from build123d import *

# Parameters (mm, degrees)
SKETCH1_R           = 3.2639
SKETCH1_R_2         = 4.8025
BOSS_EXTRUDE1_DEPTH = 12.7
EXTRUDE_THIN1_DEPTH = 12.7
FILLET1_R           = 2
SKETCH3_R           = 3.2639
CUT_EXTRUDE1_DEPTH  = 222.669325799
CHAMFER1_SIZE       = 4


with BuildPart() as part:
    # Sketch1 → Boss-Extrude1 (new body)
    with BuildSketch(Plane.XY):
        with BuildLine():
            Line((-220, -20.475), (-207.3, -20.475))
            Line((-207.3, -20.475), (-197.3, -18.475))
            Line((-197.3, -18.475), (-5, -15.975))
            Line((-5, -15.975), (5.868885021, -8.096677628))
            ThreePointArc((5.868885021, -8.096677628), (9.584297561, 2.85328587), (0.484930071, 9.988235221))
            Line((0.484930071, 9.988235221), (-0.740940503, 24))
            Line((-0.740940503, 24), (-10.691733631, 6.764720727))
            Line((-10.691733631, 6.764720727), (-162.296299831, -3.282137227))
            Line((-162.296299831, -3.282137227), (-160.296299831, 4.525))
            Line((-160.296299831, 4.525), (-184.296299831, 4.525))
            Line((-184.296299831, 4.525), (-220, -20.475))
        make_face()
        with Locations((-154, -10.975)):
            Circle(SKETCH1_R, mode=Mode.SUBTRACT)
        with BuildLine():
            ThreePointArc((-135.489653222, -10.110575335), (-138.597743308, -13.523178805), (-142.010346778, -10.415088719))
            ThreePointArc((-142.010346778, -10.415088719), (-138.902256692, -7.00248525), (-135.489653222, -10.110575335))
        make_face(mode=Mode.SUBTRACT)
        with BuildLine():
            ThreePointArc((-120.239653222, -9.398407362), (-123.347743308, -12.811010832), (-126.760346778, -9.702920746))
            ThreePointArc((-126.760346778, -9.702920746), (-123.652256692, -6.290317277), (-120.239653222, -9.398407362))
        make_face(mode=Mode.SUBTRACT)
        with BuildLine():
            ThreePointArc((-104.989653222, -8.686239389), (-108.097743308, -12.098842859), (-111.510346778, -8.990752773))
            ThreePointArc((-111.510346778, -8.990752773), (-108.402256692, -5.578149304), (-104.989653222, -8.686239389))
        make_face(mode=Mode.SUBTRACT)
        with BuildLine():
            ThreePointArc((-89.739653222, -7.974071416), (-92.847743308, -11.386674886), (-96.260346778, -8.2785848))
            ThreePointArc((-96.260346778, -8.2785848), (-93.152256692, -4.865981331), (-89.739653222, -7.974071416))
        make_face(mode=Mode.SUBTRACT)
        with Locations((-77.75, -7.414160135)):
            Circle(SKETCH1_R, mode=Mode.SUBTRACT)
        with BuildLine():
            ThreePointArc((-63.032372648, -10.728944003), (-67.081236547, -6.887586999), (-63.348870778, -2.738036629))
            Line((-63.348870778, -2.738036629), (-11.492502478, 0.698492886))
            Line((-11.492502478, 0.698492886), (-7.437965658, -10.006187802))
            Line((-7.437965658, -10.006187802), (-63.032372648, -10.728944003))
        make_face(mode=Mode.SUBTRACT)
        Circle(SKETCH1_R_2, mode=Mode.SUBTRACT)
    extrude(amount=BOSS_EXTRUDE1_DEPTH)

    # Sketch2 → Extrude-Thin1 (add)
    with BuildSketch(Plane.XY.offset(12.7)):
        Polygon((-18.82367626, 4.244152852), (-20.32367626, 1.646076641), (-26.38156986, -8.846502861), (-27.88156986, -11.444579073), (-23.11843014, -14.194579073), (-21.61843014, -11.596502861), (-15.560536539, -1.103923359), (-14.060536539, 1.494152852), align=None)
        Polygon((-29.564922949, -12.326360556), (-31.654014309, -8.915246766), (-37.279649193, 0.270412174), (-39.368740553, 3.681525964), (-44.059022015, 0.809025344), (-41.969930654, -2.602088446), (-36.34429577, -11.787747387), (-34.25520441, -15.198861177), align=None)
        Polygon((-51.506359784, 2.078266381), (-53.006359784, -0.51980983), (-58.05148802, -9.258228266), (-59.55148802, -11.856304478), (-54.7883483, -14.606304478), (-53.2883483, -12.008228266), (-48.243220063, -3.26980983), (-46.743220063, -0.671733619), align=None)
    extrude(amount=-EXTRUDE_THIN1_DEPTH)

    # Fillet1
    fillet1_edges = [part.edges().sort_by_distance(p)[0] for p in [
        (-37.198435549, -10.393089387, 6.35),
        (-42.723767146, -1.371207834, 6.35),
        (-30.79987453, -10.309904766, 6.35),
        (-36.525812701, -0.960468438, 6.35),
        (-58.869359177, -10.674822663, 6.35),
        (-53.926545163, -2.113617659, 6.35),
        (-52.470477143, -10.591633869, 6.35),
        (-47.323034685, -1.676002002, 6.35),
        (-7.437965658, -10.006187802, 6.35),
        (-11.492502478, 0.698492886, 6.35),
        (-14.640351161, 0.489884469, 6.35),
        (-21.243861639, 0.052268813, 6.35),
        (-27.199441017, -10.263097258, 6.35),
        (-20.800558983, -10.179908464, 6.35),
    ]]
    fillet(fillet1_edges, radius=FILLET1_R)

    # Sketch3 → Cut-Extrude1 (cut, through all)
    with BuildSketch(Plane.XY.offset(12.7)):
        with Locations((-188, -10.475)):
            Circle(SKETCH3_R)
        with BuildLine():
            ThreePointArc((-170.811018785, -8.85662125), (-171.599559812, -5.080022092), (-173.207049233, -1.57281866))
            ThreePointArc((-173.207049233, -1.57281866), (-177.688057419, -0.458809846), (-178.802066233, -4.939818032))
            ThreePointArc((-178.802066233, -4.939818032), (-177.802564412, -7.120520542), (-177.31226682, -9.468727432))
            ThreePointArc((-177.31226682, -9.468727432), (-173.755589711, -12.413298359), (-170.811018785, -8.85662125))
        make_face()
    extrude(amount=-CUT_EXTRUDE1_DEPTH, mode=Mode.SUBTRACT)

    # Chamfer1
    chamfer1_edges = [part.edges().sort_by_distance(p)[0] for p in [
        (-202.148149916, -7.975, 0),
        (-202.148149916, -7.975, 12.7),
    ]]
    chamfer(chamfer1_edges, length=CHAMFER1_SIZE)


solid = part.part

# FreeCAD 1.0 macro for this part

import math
import FreeCAD as App
import Part
import Sketcher
Q = App.Units.Quantity


def edges_at(feature, points):
    """Names of the edges that pass closest to the given points."""
    edges = feature.Shape.Edges
    near = lambda p: min(range(len(edges)), key=lambda i: edges[i].distToShape(Part.Vertex(*p))[0])
    return sorted({f"Edge{near(p) + 1}" for p in points})


def add_polygon(sketch, points):
    """Adds a closed chain of lines whose ends are joined by coincident constraints."""
    first, n = sketch.GeometryCount, len(points)
    for a, b in zip(points, points[1:] + points[:1]):
        sketch.addGeometry(Part.LineSegment(App.Vector(*a, 0), App.Vector(*b, 0)), False)
    for i in range(n):
        sketch.addConstraint(Sketcher.Constraint("Coincident", first + i, 2, first + (i + 1) % n, 1))

doc = App.newDocument("Part")
body = doc.addObject("PartDesign::Body", "Body")

# Sketch on XY plane
sketch1 = body.newObject("Sketcher::SketchObject", "Sketch")
sketch1.AttachmentSupport = (doc.getObject("XY_Plane"), [""])
sketch1.MapMode = "FlatFace"
sketch1.addGeometry([
    Part.LineSegment(App.Vector(-220, -20.475, 0), App.Vector(-207.3, -20.475, 0)),  # 0
    Part.LineSegment(App.Vector(-207.3, -20.475, 0), App.Vector(-197.3, -18.475, 0)),  # 1
    Part.LineSegment(App.Vector(-197.3, -18.475, 0), App.Vector(-5, -15.975, 0)),  # 2
    Part.LineSegment(App.Vector(-5, -15.975, 0), App.Vector(5.868885, -8.096678, 0)),  # 3
    Part.ArcOfCircle(Part.Circle(App.Vector(0, 0, 0), App.Vector(0, 0, 1), 10), math.radians(-54.063484), math.radians(87.220465)),  # 4
    Part.LineSegment(App.Vector(0.48493, 9.988235, 0), App.Vector(-0.740941, 24, 0)),  # 5
    Part.LineSegment(App.Vector(-0.740941, 24, 0), App.Vector(-10.691734, 6.764721, 0)),  # 6
    Part.LineSegment(App.Vector(-10.691734, 6.764721, 0), App.Vector(-162.2963, -3.282137, 0)),  # 7
    Part.LineSegment(App.Vector(-162.2963, -3.282137, 0), App.Vector(-160.2963, 4.525, 0)),  # 8
    Part.LineSegment(App.Vector(-160.2963, 4.525, 0), App.Vector(-184.2963, 4.525, 0)),  # 9
    Part.LineSegment(App.Vector(-184.2963, 4.525, 0), App.Vector(-220, -20.475, 0)),  # 10
    Part.Circle(App.Vector(-154, -10.975, 0), App.Vector(0, 0, 1), 3.2639),  # 11
    Part.ArcOfCircle(Part.Circle(App.Vector(-138.75, -10.262832, 0), App.Vector(0, 0, 1), 3.2639), math.radians(2.673744), math.radians(182.673744)),  # 12
    Part.ArcOfCircle(Part.Circle(App.Vector(-138.75, -10.262832, 0), App.Vector(0, 0, 1), 3.2639), math.radians(-177.326256), math.radians(2.673744)),  # 13
    Part.ArcOfCircle(Part.Circle(App.Vector(-123.5, -9.550664, 0), App.Vector(0, 0, 1), 3.2639), math.radians(2.673744), math.radians(182.673744)),  # 14
    Part.ArcOfCircle(Part.Circle(App.Vector(-123.5, -9.550664, 0), App.Vector(0, 0, 1), 3.2639), math.radians(-177.326256), math.radians(2.673744)),  # 15
    Part.ArcOfCircle(Part.Circle(App.Vector(-108.25, -8.838496, 0), App.Vector(0, 0, 1), 3.2639), math.radians(2.673744), math.radians(182.673744)),  # 16
    Part.ArcOfCircle(Part.Circle(App.Vector(-108.25, -8.838496, 0), App.Vector(0, 0, 1), 3.2639), math.radians(-177.326256), math.radians(2.673744)),  # 17
    Part.ArcOfCircle(Part.Circle(App.Vector(-93, -8.126328, 0), App.Vector(0, 0, 1), 3.2639), math.radians(2.673744), math.radians(182.673744)),  # 18
    Part.ArcOfCircle(Part.Circle(App.Vector(-93, -8.126328, 0), App.Vector(0, 0, 1), 3.2639), math.radians(-177.326256), math.radians(2.673744)),  # 19
    Part.Circle(App.Vector(-77.75, -7.41416, 0), App.Vector(0, 0, 1), 3.2639),  # 20
    Part.LineSegment(App.Vector(-7.437966, -10.006188, 0), App.Vector(-63.032373, -10.728944, 0)),  # 21
    Part.ArcOfCircle(Part.Circle(App.Vector(-63.08437, -6.729282, 0), App.Vector(0, 0, 1), 4), math.radians(93.791456), math.radians(270.744833)),  # 22
    Part.LineSegment(App.Vector(-63.348871, -2.738037, 0), App.Vector(-11.492502, 0.698493, 0)),  # 23
    Part.LineSegment(App.Vector(-11.492502, 0.698493, 0), App.Vector(-7.437966, -10.006188, 0)),  # 24
    Part.Circle(App.Vector(0, 0, 0), App.Vector(0, 0, 1), 4.8025),  # 25
], False)
sketch1.addConstraint([
    Sketcher.Constraint("Coincident", 0, 2, 1, 1),
    Sketcher.Constraint("Coincident", 1, 2, 2, 1),
    Sketcher.Constraint("Coincident", 2, 2, 3, 1),
    Sketcher.Constraint("Tangent", 3, 2, 4, 1),
    Sketcher.Constraint("Coincident", 4, 2, 5, 1),
    Sketcher.Constraint("Coincident", 5, 2, 6, 1),
    Sketcher.Constraint("Coincident", 6, 2, 7, 1),
    Sketcher.Constraint("Coincident", 7, 2, 8, 1),
    Sketcher.Constraint("Coincident", 8, 2, 9, 1),
    Sketcher.Constraint("Coincident", 9, 2, 10, 1),
    Sketcher.Constraint("Coincident", 10, 2, 0, 1),
    Sketcher.Constraint("Tangent", 12, 1, 13, 2),
    Sketcher.Constraint("Coincident", 13, 1, 12, 2),
    Sketcher.Constraint("Tangent", 14, 1, 15, 2),
    Sketcher.Constraint("Coincident", 15, 1, 14, 2),
    Sketcher.Constraint("Tangent", 16, 1, 17, 2),
    Sketcher.Constraint("Coincident", 17, 1, 16, 2),
    Sketcher.Constraint("Tangent", 18, 1, 19, 2),
    Sketcher.Constraint("Coincident", 19, 1, 18, 2),
    Sketcher.Constraint("Tangent", 21, 2, 22, 2),
    Sketcher.Constraint("Tangent", 22, 1, 23, 1),
    Sketcher.Constraint("Coincident", 23, 2, 24, 1),
    Sketcher.Constraint("Coincident", 24, 2, 21, 1),
    Sketcher.Constraint("Horizontal", 0),
    Sketcher.Constraint("Horizontal", 9),
    Sketcher.Constraint("Coincident", 4, 3, -1, 1),
    Sketcher.Constraint("Coincident", 25, 3, -1, 1),
    Sketcher.Constraint("Equal", 11, 12),
    Sketcher.Constraint("Equal", 13, 14),
    Sketcher.Constraint("Equal", 15, 16),
    Sketcher.Constraint("Equal", 17, 18),
    Sketcher.Constraint("Equal", 19, 20),
    Sketcher.Constraint("Parallel", 2, 21),
    Sketcher.Constraint("Parallel", 7, 23),
    Sketcher.Constraint("Radius", 4, 10.0),
    Sketcher.Constraint("Radius", 22, 4.0),
    Sketcher.Constraint("DistanceX", 9, 2, 9, 1, 24.0),
    Sketcher.Constraint("Angle", 5, Q("95 deg")),
    Sketcher.Constraint("Angle", 6, Q("-120 deg")),
    Sketcher.Constraint("Angle", 10, Q("-145 deg")),
    Sketcher.Constraint("Diameter", 25, 9.605),
    Sketcher.Constraint("DistanceX", 0, 1, 0, 2, 12.7),
    Sketcher.Constraint("DistanceX", 11, 3, -1, 1, 154.0),
    Sketcher.Constraint("DistanceX", 18, 3, -1, 1, 93.0),
    Sketcher.Constraint("DistanceX", 2, 2, -1, 1, 5.0),
    Sketcher.Constraint("DistanceY", -1, 1, 5, 2, 24.0),
    Sketcher.Constraint("DistanceX", 10, 2, -1, 1, 220.0),
    Sketcher.Constraint("DistanceX", 0, 2, 1, 2, 10.0),
    Sketcher.Constraint("DistanceY", 0, 2, 1, 2, 2.0),
    Sketcher.Constraint("DistanceX", 7, 2, 8, 2, 2.0),
    Sketcher.Constraint("DistanceY", 1, 2, 9, 2, 23.0),
    Sketcher.Constraint("Diameter", 11, 6.5278),
    Sketcher.Constraint("DistanceX", 14, 3, -1, 1, 123.5),
    Sketcher.Constraint("DistanceX", 13, 3, 16, 3, 30.5),
    Sketcher.Constraint("DistanceX", 17, 3, 20, 3, 30.5),
    Sketcher.Constraint("DistanceY", 0, 2, 11, 3, 9.5),
    Sketcher.Constraint("DistanceX", 12, 3, -1, 1, 138.75),
    Sketcher.Constraint("DistanceX", 12, 1, 14, 1, 15.25),
    Sketcher.Constraint("DistanceX", 14, 1, 16, 1, 15.25),
    Sketcher.Constraint("DistanceX", 16, 1, 18, 1, 15.25),
    Sketcher.Constraint("DistanceY", 11, 3, -1, 1, 10.975),
    Sketcher.Constraint("DistanceY", 2, 2, -1, 1, 15.975),
    Sketcher.Constraint("DistanceX", 22, 3, 4, 2, 63.5693),
    Sketcher.Constraint("DistanceY", 3, 2, 6, 2, 14.861398),
    Sketcher.Constraint("DistanceX", 22, 1, 22, 3, 0.2645),
    Sketcher.Constraint("Distance", 24, 11.44681),
    Sketcher.Constraint("DistanceY", 18, 3, -1, 1, 8.126328),
    Sketcher.Constraint("DistanceY", 20, 3, -1, 1, 7.41416),
    Sketcher.Constraint("DistanceX", 22, 3, -1, 1, 63.08437),
    Sketcher.Constraint("DistanceY", 22, 3, -1, 1, 6.729282),
    Sketcher.Constraint("DistanceY", 13, 1, -1, 1, 10.415089),
    Sketcher.Constraint("DistanceY", 15, 1, -1, 1, 9.702921),
    Sketcher.Constraint("DistanceY", 16, 1, -1, 1, 8.686239),
    Sketcher.Constraint("DistanceY", 18, 1, -1, 1, 7.974071),
    Sketcher.Constraint("DistanceY", 12, 1, 14, 3, 0.559911),
    Sketcher.Constraint("DistanceY", 14, 1, 16, 3, 0.559911),
    Sketcher.Constraint("DistanceY", 15, 3, 17, 1, 0.559911),
    Sketcher.Constraint("DistanceY", 17, 3, 19, 1, 0.559911),
    Sketcher.Constraint("DistanceX", 23, 2, 6, 2, 0.800769),
])
pad1 = body.newObject("PartDesign::Pad", "Pad")
pad1.Profile = sketch1
pad1.Length = 12.7

# Sketch on XY plane
sketch2 = body.newObject("Sketcher::SketchObject", "Sketch001")
sketch2.AttachmentSupport = (doc.getObject("XY_Plane"), [""])
sketch2.MapMode = "FlatFace"
sketch2.AttachmentOffset = App.Placement(App.Vector(0, 0, 12.7), App.Rotation())
add_polygon(sketch2, [(-18.823676, 4.244153), (-20.323676, 1.646077), (-26.38157, -8.846503), (-27.88157, -11.444579), (-23.11843, -14.194579), (-21.61843, -11.596503), (-15.560537, -1.103923), (-14.060537, 1.494153)])  # lines 0-7
add_polygon(sketch2, [(-29.564923, -12.326361), (-31.654014, -8.915247), (-37.279649, 0.270412), (-39.368741, 3.681526), (-44.059022, 0.809025), (-41.969931, -2.602088), (-36.344296, -11.787747), (-34.255204, -15.198861)])  # lines 8-15
add_polygon(sketch2, [(-51.50636, 2.078266), (-53.00636, -0.51981), (-58.051488, -9.258228), (-59.551488, -11.856304), (-54.788348, -14.606304), (-53.288348, -12.008228), (-46.74322, -0.671734)])  # lines 16-22
sketch2.addConstraint([
    Sketcher.Constraint("Parallel", 0, 1),
    Sketcher.Constraint("Parallel", 1, 2),
    Sketcher.Constraint("Perpendicular", 2, 3),
    Sketcher.Constraint("Perpendicular", 3, 4),
    Sketcher.Constraint("Parallel", 4, 5),
    Sketcher.Constraint("Parallel", 5, 6),
    Sketcher.Constraint("Perpendicular", 6, 7),
    Sketcher.Constraint("Parallel", 8, 9),
    Sketcher.Constraint("Parallel", 9, 10),
    Sketcher.Constraint("Perpendicular", 10, 11),
    Sketcher.Constraint("Perpendicular", 11, 12),
    Sketcher.Constraint("Parallel", 12, 13),
    Sketcher.Constraint("Parallel", 13, 14),
    Sketcher.Constraint("Perpendicular", 14, 15),
    Sketcher.Constraint("Perpendicular", 7, 16),
    Sketcher.Constraint("Parallel", 16, 17),
    Sketcher.Constraint("Parallel", 17, 18),
    Sketcher.Constraint("Perpendicular", 18, 19),
    Sketcher.Constraint("Perpendicular", 19, 20),
    Sketcher.Constraint("Parallel", 20, 21),
    Sketcher.Constraint("Perpendicular", 21, 22),
    Sketcher.Constraint("Equal", 0, 2),
    Sketcher.Constraint("Equal", 2, 4),
    Sketcher.Constraint("Equal", 1, 5),
    Sketcher.Constraint("Equal", 8, 10),
    Sketcher.Constraint("Equal", 7, 11),
    Sketcher.Constraint("Equal", 10, 12),
    Sketcher.Constraint("Equal", 9, 13),
    Sketcher.Constraint("Equal", 6, 16),
    Sketcher.Constraint("Equal", 16, 18),
    Sketcher.Constraint("Equal", 15, 19),
    Sketcher.Constraint("Equal", 18, 20),
    Sketcher.Constraint("Angle", 0, Q("-120 deg")),
    Sketcher.Constraint("Distance", 0, 3.0),
    Sketcher.Constraint("Distance", 8, 4.0),
    Sketcher.Constraint("Distance", 3, 5.5),
    Sketcher.Constraint("DistanceY", 11, 2, 10, 2, 2.872501),
    Sketcher.Constraint("DistanceX", 21, 2, 11, 2, 2.684198),
    Sketcher.Constraint("Distance", 9, 10.771448),
    Sketcher.Constraint("DistanceX", 1, 2, -1, 1, 26.38157),
    Sketcher.Constraint("DistanceY", 2, 2, -1, 1, 11.444579),
    Sketcher.Constraint("DistanceX", 9, 2, -1, 1, 37.279649),
    Sketcher.Constraint("DistanceY", 12, 2, -1, 1, 2.602088),
    Sketcher.Constraint("DistanceY", 16, 2, -1, 1, 0.51981),
    Sketcher.Constraint("DistanceX", 17, 2, -1, 1, 58.051488),
    Sketcher.Constraint("DistanceY", 1, 2, 0, 2, 10.49258),
])
pad2 = body.newObject("PartDesign::Pad", "Pad001")
pad2.Profile = sketch2
pad2.Length = 12.7
pad2.Reversed = True
doc.recompute()

fillet = body.newObject("PartDesign::Fillet", "Fillet")
fillet.Base = (pad2, edges_at(pad2, [
    (-37.198, -10.393, 6.35),
    (-42.724, -1.371, 6.35),
    (-30.8, -10.31, 6.35),
    (-36.526, -0.96, 6.35),
    (-58.869, -10.675, 6.35),
    (-53.927, -2.114, 6.35),
    (-52.47, -10.592, 6.35),
    (-47.323, -1.676, 6.35),
    (-7.438, -10.006, 6.35),
    (-11.493, 0.698, 6.35),
    (-14.64, 0.49, 6.35),
    (-21.244, 0.052, 6.35),
    (-27.199, -10.263, 6.35),
    (-20.801, -10.18, 6.35),
]))
fillet.Radius = 2

# Sketch on XY plane
sketch3 = body.newObject("Sketcher::SketchObject", "Sketch002")
sketch3.AttachmentSupport = (doc.getObject("XY_Plane"), [""])
sketch3.MapMode = "FlatFace"
sketch3.AttachmentOffset = App.Placement(App.Vector(0, 0, 12.7), App.Rotation())
sketch3.addGeometry([
    Part.Circle(App.Vector(-188, -10.475, 0), App.Vector(0, 0, 1), 3.2639),  # 0
    Part.ArcOfCircle(Part.Circle(App.Vector(-188, -10.475, 0), App.Vector(0, 0, 1), 17.265), math.radians(5.378662), math.radians(31.038914)),  # 1
    Part.ArcOfCircle(Part.Circle(App.Vector(-176.004558, -3.256318, 0), App.Vector(0, 0, 1), 3.265), math.radians(31.038914), math.radians(211.038914)),  # 2
    Part.ArcOfCircle(Part.Circle(App.Vector(-188, -10.475, 0), App.Vector(0, 0, 1), 10.735), math.radians(5.378662), math.radians(31.038914)),  # 3
    Part.ArcOfCircle(Part.Circle(App.Vector(-174.061643, -9.162674, 0), App.Vector(0, 0, 1), 3.265), math.radians(-174.621338), math.radians(5.378662)),  # 4
], False)
sketch3.addConstraint([
    Sketcher.Constraint("Tangent", 1, 2, 2, 1),
    Sketcher.Constraint("Tangent", 2, 2, 3, 2),
    Sketcher.Constraint("Tangent", 3, 1, 4, 1),
    Sketcher.Constraint("Tangent", 4, 2, 1, 1),
    Sketcher.Constraint("Coincident", 1, 3, 0, 3),
    Sketcher.Constraint("Coincident", 3, 3, 0, 3),
    Sketcher.Constraint("DistanceX", 0, 3, -1, 1, 188.0),
    Sketcher.Constraint("Radius", 1, 17.265),
    Sketcher.Constraint("Radius", 2, 3.265),
    Sketcher.Constraint("Diameter", 0, 6.5278),
    Sketcher.Constraint("DistanceY", 0, 3, -1, 1, 10.475),
    Sketcher.Constraint("DistanceY", 2, 2, 1, 2, 3.366999),
    Sketcher.Constraint("DistanceX", 2, 2, 3, 1, 1.489799),
])
pocket1 = body.newObject("PartDesign::Pocket", "Pocket")
pocket1.Profile = sketch3
pocket1.Type = "ThroughAll"
doc.recompute()

chamfer = body.newObject("PartDesign::Chamfer", "Chamfer")
chamfer.Base = (pocket1, edges_at(pocket1, [(-202.148, -7.975, 0), (-202.148, -7.975, 12.7)]))
chamfer.Size = 4

doc.recompute()
